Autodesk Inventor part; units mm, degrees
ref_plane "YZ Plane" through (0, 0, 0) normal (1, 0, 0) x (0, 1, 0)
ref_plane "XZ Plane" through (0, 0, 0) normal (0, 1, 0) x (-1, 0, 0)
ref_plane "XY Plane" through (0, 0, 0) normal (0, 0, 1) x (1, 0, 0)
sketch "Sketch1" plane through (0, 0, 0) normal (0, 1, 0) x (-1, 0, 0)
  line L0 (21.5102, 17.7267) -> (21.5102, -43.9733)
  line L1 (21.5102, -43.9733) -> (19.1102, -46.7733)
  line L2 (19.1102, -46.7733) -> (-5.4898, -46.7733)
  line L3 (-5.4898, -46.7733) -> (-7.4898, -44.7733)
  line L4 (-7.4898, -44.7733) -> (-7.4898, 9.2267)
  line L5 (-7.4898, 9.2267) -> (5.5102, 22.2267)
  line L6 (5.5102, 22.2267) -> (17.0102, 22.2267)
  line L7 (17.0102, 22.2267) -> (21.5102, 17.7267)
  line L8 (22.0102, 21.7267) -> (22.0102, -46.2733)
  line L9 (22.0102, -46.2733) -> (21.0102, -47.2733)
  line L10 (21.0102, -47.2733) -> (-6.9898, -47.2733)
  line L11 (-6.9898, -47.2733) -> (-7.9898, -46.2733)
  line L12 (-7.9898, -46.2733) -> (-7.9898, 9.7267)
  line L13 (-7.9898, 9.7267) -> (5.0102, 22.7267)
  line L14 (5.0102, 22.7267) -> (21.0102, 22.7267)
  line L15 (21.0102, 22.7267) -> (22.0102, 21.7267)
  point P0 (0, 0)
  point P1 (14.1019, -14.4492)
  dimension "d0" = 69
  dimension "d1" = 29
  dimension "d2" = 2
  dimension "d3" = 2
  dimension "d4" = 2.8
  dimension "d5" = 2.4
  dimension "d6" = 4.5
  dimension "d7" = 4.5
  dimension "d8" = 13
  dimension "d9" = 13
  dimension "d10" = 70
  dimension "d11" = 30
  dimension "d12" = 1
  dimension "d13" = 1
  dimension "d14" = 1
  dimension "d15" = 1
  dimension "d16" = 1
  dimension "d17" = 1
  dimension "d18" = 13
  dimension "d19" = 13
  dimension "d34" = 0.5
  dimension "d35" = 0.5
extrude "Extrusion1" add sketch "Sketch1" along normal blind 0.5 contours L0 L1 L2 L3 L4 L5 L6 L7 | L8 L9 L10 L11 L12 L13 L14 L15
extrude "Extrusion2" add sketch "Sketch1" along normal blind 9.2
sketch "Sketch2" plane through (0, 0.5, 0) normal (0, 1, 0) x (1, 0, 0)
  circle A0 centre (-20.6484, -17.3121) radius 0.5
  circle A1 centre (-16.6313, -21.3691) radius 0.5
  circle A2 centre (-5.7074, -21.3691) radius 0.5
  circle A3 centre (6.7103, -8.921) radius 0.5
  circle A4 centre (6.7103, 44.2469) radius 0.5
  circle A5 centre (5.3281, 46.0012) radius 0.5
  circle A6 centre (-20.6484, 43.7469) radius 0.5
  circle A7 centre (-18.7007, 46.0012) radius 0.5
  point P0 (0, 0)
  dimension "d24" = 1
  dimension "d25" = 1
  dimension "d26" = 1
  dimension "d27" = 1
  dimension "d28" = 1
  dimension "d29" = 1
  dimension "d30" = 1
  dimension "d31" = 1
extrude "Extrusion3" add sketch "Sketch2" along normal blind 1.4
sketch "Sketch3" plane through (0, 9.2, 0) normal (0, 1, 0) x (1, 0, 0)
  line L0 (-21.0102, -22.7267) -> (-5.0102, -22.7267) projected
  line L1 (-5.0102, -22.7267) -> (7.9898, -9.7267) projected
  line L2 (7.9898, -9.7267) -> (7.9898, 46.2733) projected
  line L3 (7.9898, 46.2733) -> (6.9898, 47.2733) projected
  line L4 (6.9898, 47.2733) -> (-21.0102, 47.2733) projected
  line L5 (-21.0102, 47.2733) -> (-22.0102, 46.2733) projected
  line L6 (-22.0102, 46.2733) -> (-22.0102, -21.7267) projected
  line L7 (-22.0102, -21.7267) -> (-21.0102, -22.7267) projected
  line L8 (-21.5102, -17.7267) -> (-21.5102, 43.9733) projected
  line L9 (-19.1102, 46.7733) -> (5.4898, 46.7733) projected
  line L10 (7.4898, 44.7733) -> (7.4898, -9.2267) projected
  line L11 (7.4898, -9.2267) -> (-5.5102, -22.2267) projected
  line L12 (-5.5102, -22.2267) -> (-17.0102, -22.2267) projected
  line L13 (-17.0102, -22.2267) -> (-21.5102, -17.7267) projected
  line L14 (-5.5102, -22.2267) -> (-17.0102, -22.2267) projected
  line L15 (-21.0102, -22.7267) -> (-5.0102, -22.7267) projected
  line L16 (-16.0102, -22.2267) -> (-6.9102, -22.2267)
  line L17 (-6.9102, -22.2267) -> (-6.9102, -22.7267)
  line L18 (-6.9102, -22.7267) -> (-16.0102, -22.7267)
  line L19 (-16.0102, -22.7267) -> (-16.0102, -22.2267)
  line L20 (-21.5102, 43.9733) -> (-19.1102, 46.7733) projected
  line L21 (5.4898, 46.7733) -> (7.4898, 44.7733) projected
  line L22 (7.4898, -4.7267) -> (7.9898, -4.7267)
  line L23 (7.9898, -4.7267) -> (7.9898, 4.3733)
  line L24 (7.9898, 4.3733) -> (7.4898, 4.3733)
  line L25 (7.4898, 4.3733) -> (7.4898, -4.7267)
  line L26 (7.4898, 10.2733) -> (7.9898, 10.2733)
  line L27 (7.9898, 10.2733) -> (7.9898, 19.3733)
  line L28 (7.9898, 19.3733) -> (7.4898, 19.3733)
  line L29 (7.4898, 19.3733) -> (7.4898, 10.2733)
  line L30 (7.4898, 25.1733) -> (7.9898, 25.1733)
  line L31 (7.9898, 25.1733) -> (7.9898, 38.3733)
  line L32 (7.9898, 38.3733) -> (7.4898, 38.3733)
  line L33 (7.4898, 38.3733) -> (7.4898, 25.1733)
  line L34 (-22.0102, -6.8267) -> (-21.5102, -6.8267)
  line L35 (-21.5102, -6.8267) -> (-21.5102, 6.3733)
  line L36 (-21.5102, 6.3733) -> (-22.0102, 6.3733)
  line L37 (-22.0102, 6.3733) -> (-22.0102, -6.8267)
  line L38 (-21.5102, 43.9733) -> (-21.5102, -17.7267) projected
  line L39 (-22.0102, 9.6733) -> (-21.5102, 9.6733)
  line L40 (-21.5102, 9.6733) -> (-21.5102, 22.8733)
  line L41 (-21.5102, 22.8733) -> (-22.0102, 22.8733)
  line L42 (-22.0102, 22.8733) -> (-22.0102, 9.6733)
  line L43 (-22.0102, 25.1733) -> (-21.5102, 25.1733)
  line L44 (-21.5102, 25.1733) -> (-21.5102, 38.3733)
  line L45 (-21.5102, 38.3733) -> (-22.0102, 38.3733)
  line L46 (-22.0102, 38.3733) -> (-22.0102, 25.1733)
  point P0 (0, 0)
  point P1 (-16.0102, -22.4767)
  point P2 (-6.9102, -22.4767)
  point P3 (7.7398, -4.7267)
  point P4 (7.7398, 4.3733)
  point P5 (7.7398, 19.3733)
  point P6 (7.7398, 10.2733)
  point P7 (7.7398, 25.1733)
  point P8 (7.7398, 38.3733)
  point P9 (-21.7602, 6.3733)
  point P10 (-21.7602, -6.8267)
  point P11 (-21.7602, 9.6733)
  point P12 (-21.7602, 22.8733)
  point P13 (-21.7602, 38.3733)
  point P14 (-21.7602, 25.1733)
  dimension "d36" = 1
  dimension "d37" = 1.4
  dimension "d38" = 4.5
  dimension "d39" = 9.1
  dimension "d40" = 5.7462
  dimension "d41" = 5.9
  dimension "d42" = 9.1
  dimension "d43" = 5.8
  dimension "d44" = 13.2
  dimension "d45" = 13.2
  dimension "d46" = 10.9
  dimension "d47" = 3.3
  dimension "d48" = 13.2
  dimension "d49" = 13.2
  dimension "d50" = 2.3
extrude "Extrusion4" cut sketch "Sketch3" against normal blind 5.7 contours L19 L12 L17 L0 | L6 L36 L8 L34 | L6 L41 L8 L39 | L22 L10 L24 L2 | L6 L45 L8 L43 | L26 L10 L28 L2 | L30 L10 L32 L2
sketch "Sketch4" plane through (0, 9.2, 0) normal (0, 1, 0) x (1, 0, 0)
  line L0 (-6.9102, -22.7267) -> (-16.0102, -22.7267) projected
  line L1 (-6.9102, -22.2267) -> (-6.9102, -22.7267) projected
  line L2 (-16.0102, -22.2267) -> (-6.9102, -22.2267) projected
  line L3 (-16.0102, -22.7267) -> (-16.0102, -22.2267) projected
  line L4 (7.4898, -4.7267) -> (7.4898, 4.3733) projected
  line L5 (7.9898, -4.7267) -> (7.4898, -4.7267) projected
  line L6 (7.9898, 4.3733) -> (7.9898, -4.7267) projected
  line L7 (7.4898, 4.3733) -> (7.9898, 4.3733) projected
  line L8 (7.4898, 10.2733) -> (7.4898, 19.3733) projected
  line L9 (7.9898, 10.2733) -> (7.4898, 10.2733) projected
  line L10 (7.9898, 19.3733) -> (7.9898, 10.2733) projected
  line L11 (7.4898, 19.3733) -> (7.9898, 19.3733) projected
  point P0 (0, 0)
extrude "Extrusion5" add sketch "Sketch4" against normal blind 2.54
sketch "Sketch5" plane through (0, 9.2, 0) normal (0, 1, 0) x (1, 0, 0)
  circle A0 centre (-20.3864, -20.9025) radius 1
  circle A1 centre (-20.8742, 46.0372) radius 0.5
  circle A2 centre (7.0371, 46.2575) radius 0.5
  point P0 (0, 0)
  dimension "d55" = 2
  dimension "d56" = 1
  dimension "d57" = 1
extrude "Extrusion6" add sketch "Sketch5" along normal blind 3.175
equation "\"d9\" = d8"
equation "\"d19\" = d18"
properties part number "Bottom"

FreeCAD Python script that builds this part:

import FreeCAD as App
import Part
import Sketcher
Q = App.Units.Quantity


def add_polygon(sketch, points):
    """Adds a closed chain of lines whose ends are joined by coincident constraints."""
    first, n = sketch.GeometryCount, len(points)
    for a, b in zip(points, points[1:] + points[:1]):
        sketch.addGeometry(Part.LineSegment(App.Vector(*a, 0), App.Vector(*b, 0)), False)
    for i in range(n):
        sketch.addConstraint(Sketcher.Constraint("Coincident", first + i, 2, first + (i + 1) % n, 1))

doc = App.newDocument("Part")
body = doc.addObject("PartDesign::Body", "Body")

# Sketch on XZ plane
sketch1 = doc.addObject("Sketcher::SketchObject", "Sketch")
body.addObject(sketch1)
sketch1.AttachmentSupport = (doc.XZ_Plane, [""])
sketch1.MapMode = "FlatFace"
add_polygon(sketch1, [(-22, -46.3), (-22, 21.7), (-21, 22.7), (-5, 22.7), (8, 9.7), (8, -46.3), (7, -47.3), (-21, -47.3)])  # lines 0-7
sketch1.addConstraint([
    Sketcher.Constraint("Vertical", 0),
    Sketcher.Constraint("Horizontal", 2),
    Sketcher.Constraint("Vertical", 4),
    Sketcher.Constraint("Horizontal", 6),
    Sketcher.Constraint("Perpendicular", 1, 3),
    Sketcher.Constraint("Perpendicular", 3, 5),
    Sketcher.Constraint("Perpendicular", 5, 7),
    Sketcher.Constraint("Horizontal", 4, 2, 7, 2),
    Sketcher.Constraint("Vertical", 1, 2, 6, 2),
    Sketcher.Constraint("Equal", 1, 5),
    Sketcher.Constraint("DistanceX", 0, 2, 1, 2, Q("1 mm")),
    Sketcher.Constraint("DistanceX", 2, 2, 3, 2, Q("13 mm")),
    Sketcher.Constraint("DistanceX", 1, 2, 3, 2, Q("29 mm")),
    Sketcher.Constraint("DistanceY", 4, 2, 2, 2, Q("69 mm")),
    Sketcher.Constraint("DistanceX", 0, 2, -1, 1, Q("22.0102 mm")),
    Sketcher.Constraint("DistanceY", -1, 1, 0, 2, Q("21.7267 mm")),
])
pad1 = doc.addObject("PartDesign::Pad", "Pad")
body.addObject(pad1)
pad1.Profile = sketch1
pad1.Length = 0.5
pad1.Reversed = True

# Sketch on XZ plane
sketch2 = doc.addObject("Sketcher::SketchObject", "Sketch001")
body.addObject(sketch2)
sketch2.AttachmentSupport = (doc.XZ_Plane, [""])
sketch2.MapMode = "FlatFace"
add_polygon(sketch2, [(-22, -46.3), (-22, 21.7), (-21, 22.7), (-5, 22.7), (8, 9.7), (8, -46.3), (7, -47.3), (-21, -47.3)])  # lines 0-7
add_polygon(sketch2, [(-17, 22.2), (-21.5, 17.7), (-21.5, -44), (-19.1, -46.8), (5.5, -46.8), (7.5, -44.8), (7.5, 9.2), (-5.5, 22.2)])  # lines 8-15
sketch2.addConstraint([
    Sketcher.Constraint("Vertical", 0),
    Sketcher.Constraint("Horizontal", 2),
    Sketcher.Constraint("Vertical", 4),
    Sketcher.Constraint("Horizontal", 6),
    Sketcher.Constraint("Vertical", 9),
    Sketcher.Constraint("Horizontal", 11),
    Sketcher.Constraint("Vertical", 13),
    Sketcher.Constraint("Horizontal", 15),
    Sketcher.Constraint("Perpendicular", 1, 3),
    Sketcher.Constraint("Perpendicular", 3, 5),
    Sketcher.Constraint("Perpendicular", 5, 7),
    Sketcher.Constraint("Perpendicular", 7, 8),
    Sketcher.Constraint("Parallel", 8, 12),
    Sketcher.Constraint("Perpendicular", 12, 14),
    Sketcher.Constraint("Horizontal", 4, 2, 7, 2),
    Sketcher.Constraint("Vertical", 1, 2, 6, 2),
    Sketcher.Constraint("Equal", 1, 5),
    Sketcher.Constraint("Equal", 3, 14),
    Sketcher.Constraint("DistanceX", 0, 2, 1, 2, Q("1 mm")),
    Sketcher.Constraint("DistanceX", 2, 2, 3, 2, Q("13 mm")),
    Sketcher.Constraint("DistanceX", 1, 2, 3, 2, Q("29 mm")),
    Sketcher.Constraint("DistanceY", 4, 2, 2, 2, Q("69 mm")),
    Sketcher.Constraint("DistanceX", 11, 2, 12, 2, Q("2 mm")),
    Sketcher.Constraint("DistanceX", 8, 2, 13, 2, Q("29 mm")),
    Sketcher.Constraint("DistanceX", 0, 2, 8, 2, Q("0.5 mm")),
    Sketcher.Constraint("DistanceY", 6, 2, 10, 2, Q("0.5 mm")),
    Sketcher.Constraint("DistanceX", 9, 2, 10, 2, Q("2.4 mm")),
    Sketcher.Constraint("DistanceY", 10, 2, 9, 2, Q("2.8 mm")),
    Sketcher.Constraint("DistanceY", 13, 2, 3, 2, Q("0.5 mm")),
    Sketcher.Constraint("DistanceY", 8, 2, 14, 2, Q("4.5 mm")),
    Sketcher.Constraint("DistanceX", 0, 2, -1, 1, Q("22.0102 mm")),
    Sketcher.Constraint("DistanceY", -1, 1, 0, 2, Q("21.7267 mm")),
])
pad2 = doc.addObject("PartDesign::Pad", "Pad001")
body.addObject(pad2)
pad2.Profile = sketch2
pad2.Length = 9.2
pad2.Reversed = True

# Sketch on XZ plane
sketch3 = doc.addObject("Sketcher::SketchObject", "Sketch002")
body.addObject(sketch3)
sketch3.AttachmentSupport = (doc.XZ_Plane, [""])
sketch3.MapMode = "FlatFace"
sketch3.AttachmentOffset = App.Placement(App.Vector(0, 0, -0.5), App.Rotation())
sketch3.addGeometry([
    Part.Circle(App.Vector(-20.6, 17.3, 0), App.Vector(0, 0, 1), 0.5),  # 0
    Part.Circle(App.Vector(-16.6, 21.4, 0), App.Vector(0, 0, 1), 0.5),  # 1
    Part.Circle(App.Vector(-5.7, 21.4, 0), App.Vector(0, 0, 1), 0.5),  # 2
    Part.Circle(App.Vector(6.7, 8.9, 0), App.Vector(0, 0, 1), 0.5),  # 3
    Part.Circle(App.Vector(6.7, -44.2, 0), App.Vector(0, 0, 1), 0.5),  # 4
    Part.Circle(App.Vector(5.3, -46, 0), App.Vector(0, 0, 1), 0.5),  # 5
    Part.Circle(App.Vector(-20.6, -43.7, 0), App.Vector(0, 0, 1), 0.5),  # 6
    Part.Circle(App.Vector(-18.7, -46, 0), App.Vector(0, 0, 1), 0.5),  # 7
], False)
sketch3.addConstraint([
    Sketcher.Constraint("Equal", 0, 1),
    Sketcher.Constraint("Equal", 1, 2),
    Sketcher.Constraint("Equal", 2, 3),
    Sketcher.Constraint("Equal", 3, 4),
    Sketcher.Constraint("Equal", 4, 5),
    Sketcher.Constraint("Equal", 5, 6),
    Sketcher.Constraint("Equal", 6, 7),
    Sketcher.Constraint("Horizontal", 1, 3, 2, 3),
    Sketcher.Constraint("Horizontal", 5, 3, 7, 3),
    Sketcher.Constraint("Vertical", 3, 3, 4, 3),
    Sketcher.Constraint("Vertical", 0, 3, 6, 3),
    Sketcher.Constraint("Diameter", 0, Q("1 mm")),
    Sketcher.Constraint("DistanceY", 4, 3, 6, 3, Q("0.5 mm")),
    Sketcher.Constraint("DistanceY", -1, 1, 0, 3, Q("17.312 mm")),
    Sketcher.Constraint("DistanceY", -1, 1, 1, 3, Q("21.369 mm")),
    Sketcher.Constraint("DistanceY", -1, 1, 3, 3, Q("8.921 mm")),
    Sketcher.Constraint("DistanceY", 4, 3, -1, 1, Q("44.247 mm")),
    Sketcher.Constraint("DistanceX", -1, 1, 5, 3, Q("5.328 mm")),
    Sketcher.Constraint("DistanceX", 0, 3, 1, 3, Q("4.017 mm")),
    Sketcher.Constraint("DistanceX", 1, 3, 2, 3, Q("10.924 mm")),
    Sketcher.Constraint("DistanceX", 7, 3, 4, 3, Q("25.411 mm")),
    Sketcher.Constraint("DistanceX", 0, 3, -1, 1, Q("20.6484 mm")),
    Sketcher.Constraint("DistanceX", -1, 1, 3, 3, Q("6.7103 mm")),
    Sketcher.Constraint("DistanceY", 5, 3, -1, 1, Q("46.0012 mm")),
])
pad3 = doc.addObject("PartDesign::Pad", "Pad002")
body.addObject(pad3)
pad3.Profile = sketch3
pad3.Length = 1.4
pad3.Reversed = True

# Sketch on XZ plane
sketch4 = doc.addObject("Sketcher::SketchObject", "Sketch003")
body.addObject(sketch4)
sketch4.AttachmentSupport = (doc.XZ_Plane, [""])
sketch4.MapMode = "FlatFace"
sketch4.AttachmentOffset = App.Placement(App.Vector(0, 0, -9.2), App.Rotation())
add_polygon(sketch4, [(-16, 22.2), (-16, 22.7), (-6.9, 22.7), (-6.9, 22.2)])  # lines 0-3
add_polygon(sketch4, [(-22, -6.4), (-22, 6.8), (-21.5, 6.8), (-21.5, -6.4)])  # lines 4-7
add_polygon(sketch4, [(-22, -22.9), (-22, -9.7), (-21.5, -9.7), (-21.5, -22.9)])  # lines 8-11
add_polygon(sketch4, [(7.5, 4.7), (8, 4.7), (8, -4.4), (7.5, -4.4)])  # lines 12-15
add_polygon(sketch4, [(-22, -38.4), (-22, -25.2), (-21.5, -25.2), (-21.5, -38.4)])  # lines 16-19
add_polygon(sketch4, [(7.5, -10.3), (8, -10.3), (8, -19.4), (7.5, -19.4)])  # lines 20-23
add_polygon(sketch4, [(7.5, -25.2), (8, -25.2), (8, -38.4), (7.5, -38.4)])  # lines 24-27
sketch4.addConstraint([
    Sketcher.Constraint("Vertical", 0),
    Sketcher.Constraint("Horizontal", 1),
    Sketcher.Constraint("Vertical", 2),
    Sketcher.Constraint("Horizontal", 3),
    Sketcher.Constraint("Vertical", 4),
    Sketcher.Constraint("Horizontal", 5),
    Sketcher.Constraint("Vertical", 6),
    Sketcher.Constraint("Horizontal", 7),
    Sketcher.Constraint("Vertical", 8),
    Sketcher.Constraint("Horizontal", 9),
    Sketcher.Constraint("Vertical", 10),
    Sketcher.Constraint("Horizontal", 11),
    Sketcher.Constraint("Horizontal", 12),
    Sketcher.Constraint("Vertical", 13),
    Sketcher.Constraint("Horizontal", 14),
    Sketcher.Constraint("Vertical", 15),
    Sketcher.Constraint("Vertical", 16),
    Sketcher.Constraint("Horizontal", 17),
    Sketcher.Constraint("Vertical", 18),
    Sketcher.Constraint("Horizontal", 19),
    Sketcher.Constraint("Horizontal", 20),
    Sketcher.Constraint("Vertical", 21),
    Sketcher.Constraint("Horizontal", 22),
    Sketcher.Constraint("Vertical", 23),
    Sketcher.Constraint("Horizontal", 24),
    Sketcher.Constraint("Vertical", 25),
    Sketcher.Constraint("Horizontal", 26),
    Sketcher.Constraint("Vertical", 27),
    Sketcher.Constraint("Horizontal", 17, 2, 24, 2),
    Sketcher.Constraint("Horizontal", 19, 2, 25, 2),
    Sketcher.Constraint("Vertical", 7, 2, 8, 2),
    Sketcher.Constraint("Vertical", 6, 2, 9, 2),
    Sketcher.Constraint("Vertical", 11, 2, 16, 2),
    Sketcher.Constraint("Vertical", 10, 2, 17, 2),
    Sketcher.Constraint("Vertical", 13, 2, 20, 2),
    Sketcher.Constraint("Vertical", 15, 2, 22, 2),
    Sketcher.Constraint("Vertical", 21, 2, 24, 2),
    Sketcher.Constraint("Vertical", 23, 2, 26, 2),
    Sketcher.Constraint("Equal", 11, 12),
    Sketcher.Constraint("Equal", 26, 0),
    Sketcher.Constraint("Equal", 6, 8),
    Sketcher.Constraint("Equal", 3, 13),
    Sketcher.Constraint("Equal", 10, 16),
    Sketcher.Constraint("Equal", 15, 21),
    Sketcher.Constraint("DistanceX", 1, 1, 1, 2, Q("9.1 mm")),
    Sketcher.Constraint("DistanceY", 4, 1, 4, 2, Q("13.2 mm")),
    Sketcher.Constraint("DistanceY", 8, 2, 7, 2, Q("3.3 mm")),
    Sketcher.Constraint("DistanceY", 16, 2, 11, 2, Q("2.3 mm")),
    Sketcher.Constraint("DistanceY", 20, 2, 13, 2, Q("5.9 mm")),
    Sketcher.Constraint("DistanceY", 24, 2, 21, 2, Q("5.8 mm")),
    Sketcher.Constraint("DistanceX", 5, 1, 5, 2, Q("0.5 mm")),
    Sketcher.Constraint("DistanceX", 4, 2, 3, 2, Q("6 mm")),
    Sketcher.Constraint("DistanceY", 12, 2, 1, 2, Q("18 mm")),
    Sketcher.Constraint("DistanceX", 3, 2, 12, 2, Q("24 mm")),
    Sketcher.Constraint("DistanceX", 0, 2, -1, 1, Q("16.0102 mm")),
    Sketcher.Constraint("DistanceY", -1, 1, 0, 2, Q("22.7267 mm")),
])
pocket1 = doc.addObject("PartDesign::Pocket", "Pocket")
body.addObject(pocket1)
pocket1.Profile = sketch4
pocket1.Length = 5.7
pocket1.Reversed = True

# Sketch on XZ plane
sketch5 = doc.addObject("Sketcher::SketchObject", "Sketch004")
body.addObject(sketch5)
sketch5.AttachmentSupport = (doc.XZ_Plane, [""])
sketch5.MapMode = "FlatFace"
sketch5.AttachmentOffset = App.Placement(App.Vector(0, 0, -9.2), App.Rotation())
add_polygon(sketch5, [(-16, 22.7), (-6.9, 22.7), (-6.9, 22.2), (-16, 22.2)])  # lines 0-3
add_polygon(sketch5, [(7.5, -4.4), (7.5, 4.7), (8, 4.7), (8, -4.4)])  # lines 4-7
add_polygon(sketch5, [(7.5, -19.4), (7.5, -10.3), (8, -10.3), (8, -19.4)])  # lines 8-11
sketch5.addConstraint([
    Sketcher.Constraint("Horizontal", 0),
    Sketcher.Constraint("Vertical", 1),
    Sketcher.Constraint("Horizontal", 2),
    Sketcher.Constraint("Vertical", 3),
    Sketcher.Constraint("Vertical", 4),
    Sketcher.Constraint("Horizontal", 5),
    Sketcher.Constraint("Vertical", 6),
    Sketcher.Constraint("Horizontal", 7),
    Sketcher.Constraint("Vertical", 8),
    Sketcher.Constraint("Horizontal", 9),
    Sketcher.Constraint("Vertical", 10),
    Sketcher.Constraint("Horizontal", 11),
    Sketcher.Constraint("Vertical", 7, 2, 8, 2),
    Sketcher.Constraint("Vertical", 6, 2, 9, 2),
    Sketcher.Constraint("Equal", 11, 1),
    Sketcher.Constraint("Equal", 2, 4),
    Sketcher.Constraint("Equal", 6, 8),
    Sketcher.Constraint("DistanceX", 0, 1, 0, 2, Q("9.1 mm")),
    Sketcher.Constraint("DistanceX", 5, 1, 5, 2, Q("0.5 mm")),
    Sketcher.Constraint("DistanceY", 4, 2, 0, 2, Q("18 mm")),
    Sketcher.Constraint("DistanceX", 2, 2, 5, 2, Q("24 mm")),
    Sketcher.Constraint("DistanceY", 8, 2, 4, 2, Q("15 mm")),
    Sketcher.Constraint("DistanceX", 0, 2, -1, 1, Q("6.9102 mm")),
    Sketcher.Constraint("DistanceY", -1, 1, 0, 2, Q("22.7267 mm")),
])
pad4 = doc.addObject("PartDesign::Pad", "Pad003")
body.addObject(pad4)
pad4.Profile = sketch5
pad4.Length = 2.54

# Sketch on XZ plane
sketch6 = doc.addObject("Sketcher::SketchObject", "Sketch005")
body.addObject(sketch6)
sketch6.AttachmentSupport = (doc.XZ_Plane, [""])
sketch6.MapMode = "FlatFace"
sketch6.AttachmentOffset = App.Placement(App.Vector(0, 0, -9.2), App.Rotation())
sketch6.addGeometry([
    Part.Circle(App.Vector(-20.4, 20.9, 0), App.Vector(0, 0, 1), 1),
    Part.Circle(App.Vector(-20.9, -46, 0), App.Vector(0, 0, 1), 0.5),
    Part.Circle(App.Vector(7, -46.3, 0), App.Vector(0, 0, 1), 0.5),
], False)
sketch6.addConstraint([
    Sketcher.Constraint("Equal", 1, 2),
    Sketcher.Constraint("Diameter", 0, Q("2 mm")),
    Sketcher.Constraint("Diameter", 1, Q("1 mm")),
    Sketcher.Constraint("DistanceY", 2, 3, 0, 3, Q("67.16 mm")),
    Sketcher.Constraint("DistanceX", -1, 1, 2, 3, Q("7.037 mm")),
    Sketcher.Constraint("DistanceX", 0, 3, -1, 1, Q("20.3864 mm")),
    Sketcher.Constraint("DistanceY", -1, 1, 0, 3, Q("20.9025 mm")),
    Sketcher.Constraint("DistanceX", 1, 3, -1, 1, Q("20.8742 mm")),
    Sketcher.Constraint("DistanceY", 1, 3, -1, 1, Q("46.0372 mm")),
])
pad5 = doc.addObject("PartDesign::Pad", "Pad004")
body.addObject(pad5)
pad5.Profile = sketch6
pad5.Length = 3.175
pad5.Reversed = True

doc.recompute()
